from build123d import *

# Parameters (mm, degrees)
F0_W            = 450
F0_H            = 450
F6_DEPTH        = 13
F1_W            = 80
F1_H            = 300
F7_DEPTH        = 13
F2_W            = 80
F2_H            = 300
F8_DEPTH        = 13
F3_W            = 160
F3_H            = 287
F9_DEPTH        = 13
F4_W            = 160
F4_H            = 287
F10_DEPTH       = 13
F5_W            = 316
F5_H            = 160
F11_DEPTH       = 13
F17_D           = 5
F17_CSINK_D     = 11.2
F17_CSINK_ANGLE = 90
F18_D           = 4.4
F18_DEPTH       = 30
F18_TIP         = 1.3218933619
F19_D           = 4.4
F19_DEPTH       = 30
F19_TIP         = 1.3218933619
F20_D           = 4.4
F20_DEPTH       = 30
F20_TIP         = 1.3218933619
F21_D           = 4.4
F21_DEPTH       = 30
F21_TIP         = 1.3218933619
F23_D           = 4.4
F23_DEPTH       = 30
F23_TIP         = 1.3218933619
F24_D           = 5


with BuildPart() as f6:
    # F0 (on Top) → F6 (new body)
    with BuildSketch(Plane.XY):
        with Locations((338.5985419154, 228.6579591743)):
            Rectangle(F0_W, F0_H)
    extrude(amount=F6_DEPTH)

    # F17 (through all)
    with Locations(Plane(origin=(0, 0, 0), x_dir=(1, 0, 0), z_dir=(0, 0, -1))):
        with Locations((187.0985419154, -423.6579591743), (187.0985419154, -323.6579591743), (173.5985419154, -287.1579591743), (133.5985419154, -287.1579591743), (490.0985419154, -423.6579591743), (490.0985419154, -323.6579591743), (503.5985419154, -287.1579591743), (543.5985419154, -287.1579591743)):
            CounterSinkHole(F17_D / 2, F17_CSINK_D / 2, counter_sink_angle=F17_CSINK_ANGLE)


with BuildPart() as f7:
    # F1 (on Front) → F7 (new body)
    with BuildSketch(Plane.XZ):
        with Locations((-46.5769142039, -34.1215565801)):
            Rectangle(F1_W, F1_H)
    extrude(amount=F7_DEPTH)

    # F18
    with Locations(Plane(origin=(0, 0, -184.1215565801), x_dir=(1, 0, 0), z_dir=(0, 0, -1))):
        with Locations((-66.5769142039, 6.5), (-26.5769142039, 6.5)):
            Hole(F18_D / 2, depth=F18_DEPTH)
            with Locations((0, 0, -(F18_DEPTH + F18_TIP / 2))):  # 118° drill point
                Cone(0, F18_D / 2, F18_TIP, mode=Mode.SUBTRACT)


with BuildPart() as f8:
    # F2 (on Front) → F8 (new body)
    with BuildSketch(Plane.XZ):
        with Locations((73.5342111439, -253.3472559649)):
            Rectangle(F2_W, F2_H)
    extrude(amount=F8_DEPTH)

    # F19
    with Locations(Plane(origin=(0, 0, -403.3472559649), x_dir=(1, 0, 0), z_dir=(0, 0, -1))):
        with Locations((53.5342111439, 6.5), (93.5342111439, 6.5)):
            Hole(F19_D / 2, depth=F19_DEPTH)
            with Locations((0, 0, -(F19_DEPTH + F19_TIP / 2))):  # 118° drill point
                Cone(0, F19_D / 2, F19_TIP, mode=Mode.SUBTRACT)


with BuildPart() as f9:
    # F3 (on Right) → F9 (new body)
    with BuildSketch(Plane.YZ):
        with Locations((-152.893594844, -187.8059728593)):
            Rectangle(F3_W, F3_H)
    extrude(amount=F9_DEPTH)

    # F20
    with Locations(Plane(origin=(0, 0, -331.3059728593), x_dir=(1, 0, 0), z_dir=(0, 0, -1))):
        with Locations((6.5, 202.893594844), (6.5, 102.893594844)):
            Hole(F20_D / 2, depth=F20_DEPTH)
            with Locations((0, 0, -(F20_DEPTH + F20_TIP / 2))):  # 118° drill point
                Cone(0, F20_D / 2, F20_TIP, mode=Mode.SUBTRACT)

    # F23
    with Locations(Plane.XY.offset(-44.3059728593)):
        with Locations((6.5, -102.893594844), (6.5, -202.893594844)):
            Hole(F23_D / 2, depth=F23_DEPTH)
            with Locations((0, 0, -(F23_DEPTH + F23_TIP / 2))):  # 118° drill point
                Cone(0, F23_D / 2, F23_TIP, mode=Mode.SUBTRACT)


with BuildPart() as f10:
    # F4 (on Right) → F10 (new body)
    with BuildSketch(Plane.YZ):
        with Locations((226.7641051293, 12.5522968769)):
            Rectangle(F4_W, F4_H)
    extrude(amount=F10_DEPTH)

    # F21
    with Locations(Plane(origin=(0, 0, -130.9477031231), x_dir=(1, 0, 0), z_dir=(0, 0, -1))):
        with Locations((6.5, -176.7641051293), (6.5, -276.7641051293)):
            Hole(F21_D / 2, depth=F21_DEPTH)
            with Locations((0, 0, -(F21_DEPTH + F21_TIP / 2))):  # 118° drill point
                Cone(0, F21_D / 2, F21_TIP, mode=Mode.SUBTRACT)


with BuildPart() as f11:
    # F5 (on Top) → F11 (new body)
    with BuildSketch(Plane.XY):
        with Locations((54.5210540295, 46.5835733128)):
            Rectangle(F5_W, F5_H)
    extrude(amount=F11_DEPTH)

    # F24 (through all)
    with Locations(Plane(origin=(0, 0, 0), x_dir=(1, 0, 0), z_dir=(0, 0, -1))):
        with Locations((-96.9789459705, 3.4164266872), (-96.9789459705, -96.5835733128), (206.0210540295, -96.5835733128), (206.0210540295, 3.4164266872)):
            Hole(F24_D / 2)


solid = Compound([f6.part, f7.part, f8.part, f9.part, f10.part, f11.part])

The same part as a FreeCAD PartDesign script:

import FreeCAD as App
import Part
import Sketcher
from FreeCAD import Vector
Q = App.Units.Quantity


def add_polygon(sketch, points):
    """Adds a closed chain of lines whose ends are joined by coincident constraints."""
    first, n = sketch.GeometryCount, len(points)
    for a, b in zip(points, points[1:] + points[:1]):
        sketch.addGeometry(Part.LineSegment(App.Vector(*a, 0), App.Vector(*b, 0)), False)
    for i in range(n):
        sketch.addConstraint(Sketcher.Constraint("Coincident", first + i, 2, first + (i + 1) % n, 1))

doc = App.newDocument("Part")
body = doc.addObject("PartDesign::Body", "Body")

sketch1 = doc.addObject("Sketcher::SketchObject", "Sketch")
body.addObject(sketch1)
sketch1.AttachmentSupport = (doc.XY_Plane, [""])
sketch1.MapMode = "FlatFace"
add_polygon(sketch1, [(114, 454), (114, 4), (564, 4), (564, 454)])
sketch1.addConstraint([
    Sketcher.Constraint("Vertical", 0),
    Sketcher.Constraint("Horizontal", 1),
    Sketcher.Constraint("Vertical", 2),
    Sketcher.Constraint("Horizontal", 3),
    Sketcher.Constraint("Equal", 3, 0),
    Sketcher.Constraint("DistanceX", 1, 1, 1, 2, Q("450 mm")),
    Sketcher.Constraint("DistanceX", -1, 1, 0, 2, Q("113.598542 mm")),
    Sketcher.Constraint("DistanceY", -1, 1, 0, 2, Q("3.657959 mm")),
])
pad1 = doc.addObject("PartDesign::Pad", "Pad")
body.addObject(pad1)
pad1.Profile = sketch1
pad1.Length = 13

sketch2 = doc.addObject("Sketcher::SketchObject", "Sketch001")
body.addObject(sketch2)
sketch2.AttachmentSupport = (doc.XY_Plane, [""])
sketch2.MapMode = "FlatFace"
sketch2.addGeometry([
    Part.Circle(Vector(187.1, 423.7, 0), Vector(0, 0, 1), 2.5),
    Part.Circle(Vector(187.1, 323.7, 0), Vector(0, 0, 1), 2.5),
    Part.Circle(Vector(173.6, 287.2, 0), Vector(0, 0, 1), 2.5),
    Part.Circle(Vector(133.6, 287.2, 0), Vector(0, 0, 1), 2.5),
    Part.Circle(Vector(490.1, 423.7, 0), Vector(0, 0, 1), 2.5),
    Part.Circle(Vector(490.1, 323.7, 0), Vector(0, 0, 1), 2.5),
    Part.Circle(Vector(503.6, 287.2, 0), Vector(0, 0, 1), 2.5),
    Part.Circle(Vector(543.6, 287.2, 0), Vector(0, 0, 1), 2.5),
], False)
sketch2.addConstraint([
    Sketcher.Constraint("Equal", 0, 1),
    Sketcher.Constraint("Equal", 1, 2),
    Sketcher.Constraint("Equal", 2, 3),
    Sketcher.Constraint("Equal", 3, 4),
    Sketcher.Constraint("Equal", 4, 5),
    Sketcher.Constraint("Equal", 5, 6),
    Sketcher.Constraint("Equal", 6, 7),
    Sketcher.Constraint("Horizontal", 2, 3, 3, 3),
    Sketcher.Constraint("Horizontal", 0, 3, 4, 3),
    Sketcher.Constraint("Horizontal", 1, 3, 5, 3),
    Sketcher.Constraint("Horizontal", 3, 3, 6, 3),
    Sketcher.Constraint("Horizontal", 6, 3, 7, 3),
    Sketcher.Constraint("Vertical", 0, 3, 1, 3),
    Sketcher.Constraint("Vertical", 4, 3, 5, 3),
    Sketcher.Constraint("Diameter", 0, Q("5 mm")),
    Sketcher.Constraint("DistanceY", 1, 3, 0, 3, Q("100 mm")),
    Sketcher.Constraint("DistanceX", 3, 3, 2, 3, Q("40 mm")),
    Sketcher.Constraint("DistanceX", 0, 3, 4, 3, Q("303 mm")),
    Sketcher.Constraint("DistanceX", 2, 3, 6, 3, Q("330 mm")),
    Sketcher.Constraint("DistanceX", 6, 3, 7, 3, Q("40 mm")),
    Sketcher.Constraint("DistanceX", 2, 3, 1, 3, Q("13.5 mm")),
    Sketcher.Constraint("DistanceY", 2, 3, 1, 3, Q("36.5 mm")),
    Sketcher.Constraint("DistanceX", -1, 1, 0, 3, Q("187.098542 mm")),
    Sketcher.Constraint("DistanceY", -1, 1, 0, 3, Q("423.657959 mm")),
])
doc.recompute()
hole = doc.addObject("PartDesign::Hole", "Hole")
body.addObject(hole)
hole.Profile = sketch2
hole.ThreadType = "None"
hole.Diameter = 5
hole.DepthType = "ThroughAll"
hole.HoleCutType = "Countersink"
hole.HoleCutDiameter = 11.2
hole.HoleCutCountersinkAngle = 90
hole.Reversed = True
body2 = doc.addObject("PartDesign::Body", "Body001")

sketch3 = doc.addObject("Sketcher::SketchObject", "Sketch002")
body2.addObject(sketch3)
sketch3.AttachmentSupport = (doc.getObject("XZ_Plane001"), [""])
sketch3.MapMode = "FlatFace"
add_polygon(sketch3, [(-87, 116), (-87, -184), (-7, -184), (-7, 116)])
sketch3.addConstraint([
    Sketcher.Constraint("Vertical", 0),
    Sketcher.Constraint("Horizontal", 1),
    Sketcher.Constraint("Vertical", 2),
    Sketcher.Constraint("Horizontal", 3),
    Sketcher.Constraint("DistanceX", 1, 1, 1, 2, Q("80 mm")),
    Sketcher.Constraint("DistanceY", 0, 2, 0, 1, Q("300 mm")),
    Sketcher.Constraint("DistanceX", 0, 2, -1, 1, Q("86.576914 mm")),
    Sketcher.Constraint("DistanceY", 0, 2, -1, 1, Q("184.121557 mm")),
])
pad2 = doc.addObject("PartDesign::Pad", "Pad001")
body2.addObject(pad2)
pad2.Profile = sketch3
pad2.Length = 13

sketch4 = doc.addObject("Sketcher::SketchObject", "Sketch003")
body2.addObject(sketch4)
sketch4.AttachmentSupport = (doc.getObject("XY_Plane001"), [""])
sketch4.MapMode = "FlatFace"
sketch4.AttachmentOffset = App.Placement(Vector(0, 0, -184.121557), App.Rotation())
sketch4.addGeometry([
    Part.Circle(Vector(-66.6, -6.5, 0), Vector(0, 0, 1), 2.2),
    Part.Circle(Vector(-26.6, -6.5, 0), Vector(0, 0, 1), 2.2),
], False)
sketch4.addConstraint([
    Sketcher.Constraint("Equal", 0, 1),
    Sketcher.Constraint("Horizontal", 0, 3, 1, 3),
    Sketcher.Constraint("Diameter", 0, Q("4.4 mm")),
    Sketcher.Constraint("DistanceX", 0, 3, 1, 3, Q("40 mm")),
    Sketcher.Constraint("DistanceY", 0, 3, -1, 1, Q("6.5 mm")),
    Sketcher.Constraint("DistanceX", 0, 3, -1, 1, Q("66.576914 mm")),
])
doc.recompute()
hole2 = doc.addObject("PartDesign::Hole", "Hole001")
body2.addObject(hole2)
hole2.Profile = sketch4
hole2.ThreadType = "None"
hole2.Diameter = 4.4
hole2.DepthType = "Dimension"
hole2.Depth = 30
hole2.DrillPoint = "Angled"
hole2.DrillPointAngle = 118
hole2.Reversed = True
body3 = doc.addObject("PartDesign::Body", "Body002")

sketch5 = doc.addObject("Sketcher::SketchObject", "Sketch004")
body3.addObject(sketch5)
sketch5.AttachmentSupport = (doc.getObject("XZ_Plane002"), [""])
sketch5.MapMode = "FlatFace"
add_polygon(sketch5, [(34, -103), (34, -403), (114, -403), (114, -103)])
sketch5.addConstraint([
    Sketcher.Constraint("Vertical", 0),
    Sketcher.Constraint("Horizontal", 1),
    Sketcher.Constraint("Vertical", 2),
    Sketcher.Constraint("Horizontal", 3),
    Sketcher.Constraint("DistanceX", 1, 1, 1, 2, Q("80 mm")),
    Sketcher.Constraint("DistanceY", 0, 2, 0, 1, Q("300 mm")),
    Sketcher.Constraint("DistanceX", -1, 1, 0, 2, Q("33.534211 mm")),
    Sketcher.Constraint("DistanceY", 0, 2, -1, 1, Q("403.347256 mm")),
])
pad3 = doc.addObject("PartDesign::Pad", "Pad002")
body3.addObject(pad3)
pad3.Profile = sketch5
pad3.Length = 13

sketch6 = doc.addObject("Sketcher::SketchObject", "Sketch005")
body3.addObject(sketch6)
sketch6.AttachmentSupport = (doc.getObject("XY_Plane002"), [""])
sketch6.MapMode = "FlatFace"
sketch6.AttachmentOffset = App.Placement(Vector(0, 0, -403.347256), App.Rotation())
sketch6.addGeometry([
    Part.Circle(Vector(53.5, -6.5, 0), Vector(0, 0, 1), 2.2),
    Part.Circle(Vector(93.5, -6.5, 0), Vector(0, 0, 1), 2.2),
], False)
sketch6.addConstraint([
    Sketcher.Constraint("Equal", 0, 1),
    Sketcher.Constraint("Horizontal", 0, 3, 1, 3),
    Sketcher.Constraint("Diameter", 0, Q("4.4 mm")),
    Sketcher.Constraint("DistanceX", 0, 3, 1, 3, Q("40 mm")),
    Sketcher.Constraint("DistanceY", 0, 3, -1, 1, Q("6.5 mm")),
    Sketcher.Constraint("DistanceX", -1, 1, 0, 3, Q("53.534211 mm")),
])
doc.recompute()
hole3 = doc.addObject("PartDesign::Hole", "Hole002")
body3.addObject(hole3)
hole3.Profile = sketch6
hole3.ThreadType = "None"
hole3.Diameter = 4.4
hole3.DepthType = "Dimension"
hole3.Depth = 30
hole3.DrillPoint = "Angled"
hole3.DrillPointAngle = 118
hole3.Reversed = True
body4 = doc.addObject("PartDesign::Body", "Body003")

sketch7 = doc.addObject("Sketcher::SketchObject", "Sketch006")
body4.addObject(sketch7)
sketch7.AttachmentSupport = (doc.getObject("YZ_Plane003"), [""])
sketch7.MapMode = "FlatFace"
add_polygon(sketch7, [(-233, -44), (-233, -331), (-73, -331), (-73, -44)])
sketch7.addConstraint([
    Sketcher.Constraint("Vertical", 0),
    Sketcher.Constraint("Horizontal", 1),
    Sketcher.Constraint("Vertical", 2),
    Sketcher.Constraint("Horizontal", 3),
    Sketcher.Constraint("DistanceX", 1, 1, 1, 2, Q("160 mm")),
    Sketcher.Constraint("DistanceY", 0, 2, 0, 1, Q("287 mm")),
    Sketcher.Constraint("DistanceX", 0, 2, -1, 1, Q("232.893595 mm")),
    Sketcher.Constraint("DistanceY", 0, 2, -1, 1, Q("331.305973 mm")),
])
pad4 = doc.addObject("PartDesign::Pad", "Pad003")
body4.addObject(pad4)
pad4.Profile = sketch7
pad4.Length = 13

sketch8 = doc.addObject("Sketcher::SketchObject", "Sketch007")
body4.addObject(sketch8)
sketch8.AttachmentSupport = (doc.getObject("XY_Plane003"), [""])
sketch8.MapMode = "FlatFace"
sketch8.AttachmentOffset = App.Placement(Vector(0, 0, -331.305973), App.Rotation())
sketch8.addGeometry([
    Part.Circle(Vector(6.5, -202.9, 0), Vector(0, 0, 1), 2.2),
    Part.Circle(Vector(6.5, -102.9, 0), Vector(0, 0, 1), 2.2),
], False)
sketch8.addConstraint([
    Sketcher.Constraint("Equal", 0, 1),
    Sketcher.Constraint("Vertical", 0, 3, 1, 3),
    Sketcher.Constraint("Diameter", 0, Q("4.4 mm")),
    Sketcher.Constraint("DistanceY", 0, 3, 1, 3, Q("100 mm")),
    Sketcher.Constraint("DistanceX", -1, 1, 0, 3, Q("6.5 mm")),
    Sketcher.Constraint("DistanceY", 0, 3, -1, 1, Q("202.893595 mm")),
])
doc.recompute()
hole4 = doc.addObject("PartDesign::Hole", "Hole003")
body4.addObject(hole4)
hole4.Profile = sketch8
hole4.ThreadType = "None"
hole4.Diameter = 4.4
hole4.DepthType = "Dimension"
hole4.Depth = 30
hole4.DrillPoint = "Angled"
hole4.DrillPointAngle = 118
hole4.Reversed = True

sketch9 = doc.addObject("Sketcher::SketchObject", "Sketch008")
body4.addObject(sketch9)
sketch9.AttachmentSupport = (doc.getObject("XY_Plane003"), [""])
sketch9.MapMode = "FlatFace"
sketch9.AttachmentOffset = App.Placement(Vector(0, 0, -44.305973), App.Rotation())
sketch9.addGeometry([
    Part.Circle(Vector(6.5, -102.9, 0), Vector(0, 0, 1), 2.2),
    Part.Circle(Vector(6.5, -202.9, 0), Vector(0, 0, 1), 2.2),
], False)
sketch9.addConstraint([
    Sketcher.Constraint("Equal", 0, 1),
    Sketcher.Constraint("Vertical", 0, 3, 1, 3),
    Sketcher.Constraint("Diameter", 0, Q("4.4 mm")),
    Sketcher.Constraint("DistanceY", 1, 3, 0, 3, Q("100 mm")),
    Sketcher.Constraint("DistanceX", -1, 1, 0, 3, Q("6.5 mm")),
    Sketcher.Constraint("DistanceY", 0, 3, -1, 1, Q("102.893595 mm")),
])
doc.recompute()
hole5 = doc.addObject("PartDesign::Hole", "Hole004")
body4.addObject(hole5)
hole5.Profile = sketch9
hole5.ThreadType = "None"
hole5.Diameter = 4.4
hole5.DepthType = "Dimension"
hole5.Depth = 30
hole5.DrillPoint = "Angled"
hole5.DrillPointAngle = 118
body5 = doc.addObject("PartDesign::Body", "Body004")

sketch10 = doc.addObject("Sketcher::SketchObject", "Sketch009")
body5.addObject(sketch10)
sketch10.AttachmentSupport = (doc.getObject("YZ_Plane004"), [""])
sketch10.MapMode = "FlatFace"
add_polygon(sketch10, [(147, 156), (147, -131), (307, -131), (307, 156)])
sketch10.addConstraint([
    Sketcher.Constraint("Vertical", 0),
    Sketcher.Constraint("Horizontal", 1),
    Sketcher.Constraint("Vertical", 2),
    Sketcher.Constraint("Horizontal", 3),
    Sketcher.Constraint("DistanceX", 1, 1, 1, 2, Q("160 mm")),
    Sketcher.Constraint("DistanceY", 0, 2, 0, 1, Q("287 mm")),
    Sketcher.Constraint("DistanceX", -1, 1, 0, 2, Q("146.764105 mm")),
    Sketcher.Constraint("DistanceY", 0, 2, -1, 1, Q("130.947703 mm")),
])
pad5 = doc.addObject("PartDesign::Pad", "Pad004")
body5.addObject(pad5)
pad5.Profile = sketch10
pad5.Length = 13

sketch11 = doc.addObject("Sketcher::SketchObject", "Sketch010")
body5.addObject(sketch11)
sketch11.AttachmentSupport = (doc.getObject("XY_Plane004"), [""])
sketch11.MapMode = "FlatFace"
sketch11.AttachmentOffset = App.Placement(Vector(0, 0, -130.947703), App.Rotation())
sketch11.addGeometry([
    Part.Circle(Vector(6.5, 176.8, 0), Vector(0, 0, 1), 2.2),
    Part.Circle(Vector(6.5, 276.8, 0), Vector(0, 0, 1), 2.2),
], False)
sketch11.addConstraint([
    Sketcher.Constraint("Equal", 0, 1),
    Sketcher.Constraint("Vertical", 0, 3, 1, 3),
    Sketcher.Constraint("Diameter", 0, Q("4.4 mm")),
    Sketcher.Constraint("DistanceY", 0, 3, 1, 3, Q("100 mm")),
    Sketcher.Constraint("DistanceX", -1, 1, 0, 3, Q("6.5 mm")),
    Sketcher.Constraint("DistanceY", -1, 1, 0, 3, Q("176.764105 mm")),
])
doc.recompute()
hole6 = doc.addObject("PartDesign::Hole", "Hole005")
body5.addObject(hole6)
hole6.Profile = sketch11
hole6.ThreadType = "None"
hole6.Diameter = 4.4
hole6.DepthType = "Dimension"
hole6.Depth = 30
hole6.DrillPoint = "Angled"
hole6.DrillPointAngle = 118
hole6.Reversed = True
body6 = doc.addObject("PartDesign::Body", "Body005")

sketch12 = doc.addObject("Sketcher::SketchObject", "Sketch011")
body6.addObject(sketch12)
sketch12.AttachmentSupport = (doc.getObject("XY_Plane005"), [""])
sketch12.MapMode = "FlatFace"
add_polygon(sketch12, [(-103, 127), (-103, -33), (213, -33), (213, 127)])
sketch12.addConstraint([
    Sketcher.Constraint("Vertical", 0),
    Sketcher.Constraint("Horizontal", 1),
    Sketcher.Constraint("Vertical", 2),
    Sketcher.Constraint("Horizontal", 3),
    Sketcher.Constraint("DistanceX", 1, 1, 1, 2, Q("316 mm")),
    Sketcher.Constraint("DistanceY", 0, 2, 0, 1, Q("160 mm")),
    Sketcher.Constraint("DistanceX", 0, 2, -1, 1, Q("103.478946 mm")),
    Sketcher.Constraint("DistanceY", 0, 2, -1, 1, Q("33.416427 mm")),
])
pad6 = doc.addObject("PartDesign::Pad", "Pad005")
body6.addObject(pad6)
pad6.Profile = sketch12
pad6.Length = 13

sketch13 = doc.addObject("Sketcher::SketchObject", "Sketch012")
body6.addObject(sketch13)
sketch13.AttachmentSupport = (doc.getObject("XY_Plane005"), [""])
sketch13.MapMode = "FlatFace"
sketch13.addGeometry([
    Part.Circle(Vector(-97, -3.4, 0), Vector(0, 0, 1), 2.5),
    Part.Circle(Vector(-97, 96.6, 0), Vector(0, 0, 1), 2.5),
    Part.Circle(Vector(206, 96.6, 0), Vector(0, 0, 1), 2.5),
    Part.Circle(Vector(206, -3.4, 0), Vector(0, 0, 1), 2.5),
], False)
sketch13.addConstraint([
    Sketcher.Constraint("Equal", 0, 1),
    Sketcher.Constraint("Equal", 1, 2),
    Sketcher.Constraint("Equal", 2, 3),
    Sketcher.Constraint("Horizontal", 1, 3, 2, 3),
    Sketcher.Constraint("Horizontal", 0, 3, 3, 3),
    Sketcher.Constraint("Vertical", 0, 3, 1, 3),
    Sketcher.Constraint("Vertical", 2, 3, 3, 3),
    Sketcher.Constraint("Diameter", 0, Q("5 mm")),
    Sketcher.Constraint("DistanceY", 0, 3, 1, 3, Q("100 mm")),
    Sketcher.Constraint("DistanceX", 1, 3, 2, 3, Q("303 mm")),
    Sketcher.Constraint("DistanceX", 0, 3, -1, 1, Q("96.978946 mm")),
    Sketcher.Constraint("DistanceY", 0, 3, -1, 1, Q("3.416427 mm")),
])
doc.recompute()
hole7 = doc.addObject("PartDesign::Hole", "Hole006")
body6.addObject(hole7)
hole7.Profile = sketch13
hole7.ThreadType = "None"
hole7.Diameter = 5
hole7.DepthType = "ThroughAll"
hole7.Reversed = True

doc.recompute()
